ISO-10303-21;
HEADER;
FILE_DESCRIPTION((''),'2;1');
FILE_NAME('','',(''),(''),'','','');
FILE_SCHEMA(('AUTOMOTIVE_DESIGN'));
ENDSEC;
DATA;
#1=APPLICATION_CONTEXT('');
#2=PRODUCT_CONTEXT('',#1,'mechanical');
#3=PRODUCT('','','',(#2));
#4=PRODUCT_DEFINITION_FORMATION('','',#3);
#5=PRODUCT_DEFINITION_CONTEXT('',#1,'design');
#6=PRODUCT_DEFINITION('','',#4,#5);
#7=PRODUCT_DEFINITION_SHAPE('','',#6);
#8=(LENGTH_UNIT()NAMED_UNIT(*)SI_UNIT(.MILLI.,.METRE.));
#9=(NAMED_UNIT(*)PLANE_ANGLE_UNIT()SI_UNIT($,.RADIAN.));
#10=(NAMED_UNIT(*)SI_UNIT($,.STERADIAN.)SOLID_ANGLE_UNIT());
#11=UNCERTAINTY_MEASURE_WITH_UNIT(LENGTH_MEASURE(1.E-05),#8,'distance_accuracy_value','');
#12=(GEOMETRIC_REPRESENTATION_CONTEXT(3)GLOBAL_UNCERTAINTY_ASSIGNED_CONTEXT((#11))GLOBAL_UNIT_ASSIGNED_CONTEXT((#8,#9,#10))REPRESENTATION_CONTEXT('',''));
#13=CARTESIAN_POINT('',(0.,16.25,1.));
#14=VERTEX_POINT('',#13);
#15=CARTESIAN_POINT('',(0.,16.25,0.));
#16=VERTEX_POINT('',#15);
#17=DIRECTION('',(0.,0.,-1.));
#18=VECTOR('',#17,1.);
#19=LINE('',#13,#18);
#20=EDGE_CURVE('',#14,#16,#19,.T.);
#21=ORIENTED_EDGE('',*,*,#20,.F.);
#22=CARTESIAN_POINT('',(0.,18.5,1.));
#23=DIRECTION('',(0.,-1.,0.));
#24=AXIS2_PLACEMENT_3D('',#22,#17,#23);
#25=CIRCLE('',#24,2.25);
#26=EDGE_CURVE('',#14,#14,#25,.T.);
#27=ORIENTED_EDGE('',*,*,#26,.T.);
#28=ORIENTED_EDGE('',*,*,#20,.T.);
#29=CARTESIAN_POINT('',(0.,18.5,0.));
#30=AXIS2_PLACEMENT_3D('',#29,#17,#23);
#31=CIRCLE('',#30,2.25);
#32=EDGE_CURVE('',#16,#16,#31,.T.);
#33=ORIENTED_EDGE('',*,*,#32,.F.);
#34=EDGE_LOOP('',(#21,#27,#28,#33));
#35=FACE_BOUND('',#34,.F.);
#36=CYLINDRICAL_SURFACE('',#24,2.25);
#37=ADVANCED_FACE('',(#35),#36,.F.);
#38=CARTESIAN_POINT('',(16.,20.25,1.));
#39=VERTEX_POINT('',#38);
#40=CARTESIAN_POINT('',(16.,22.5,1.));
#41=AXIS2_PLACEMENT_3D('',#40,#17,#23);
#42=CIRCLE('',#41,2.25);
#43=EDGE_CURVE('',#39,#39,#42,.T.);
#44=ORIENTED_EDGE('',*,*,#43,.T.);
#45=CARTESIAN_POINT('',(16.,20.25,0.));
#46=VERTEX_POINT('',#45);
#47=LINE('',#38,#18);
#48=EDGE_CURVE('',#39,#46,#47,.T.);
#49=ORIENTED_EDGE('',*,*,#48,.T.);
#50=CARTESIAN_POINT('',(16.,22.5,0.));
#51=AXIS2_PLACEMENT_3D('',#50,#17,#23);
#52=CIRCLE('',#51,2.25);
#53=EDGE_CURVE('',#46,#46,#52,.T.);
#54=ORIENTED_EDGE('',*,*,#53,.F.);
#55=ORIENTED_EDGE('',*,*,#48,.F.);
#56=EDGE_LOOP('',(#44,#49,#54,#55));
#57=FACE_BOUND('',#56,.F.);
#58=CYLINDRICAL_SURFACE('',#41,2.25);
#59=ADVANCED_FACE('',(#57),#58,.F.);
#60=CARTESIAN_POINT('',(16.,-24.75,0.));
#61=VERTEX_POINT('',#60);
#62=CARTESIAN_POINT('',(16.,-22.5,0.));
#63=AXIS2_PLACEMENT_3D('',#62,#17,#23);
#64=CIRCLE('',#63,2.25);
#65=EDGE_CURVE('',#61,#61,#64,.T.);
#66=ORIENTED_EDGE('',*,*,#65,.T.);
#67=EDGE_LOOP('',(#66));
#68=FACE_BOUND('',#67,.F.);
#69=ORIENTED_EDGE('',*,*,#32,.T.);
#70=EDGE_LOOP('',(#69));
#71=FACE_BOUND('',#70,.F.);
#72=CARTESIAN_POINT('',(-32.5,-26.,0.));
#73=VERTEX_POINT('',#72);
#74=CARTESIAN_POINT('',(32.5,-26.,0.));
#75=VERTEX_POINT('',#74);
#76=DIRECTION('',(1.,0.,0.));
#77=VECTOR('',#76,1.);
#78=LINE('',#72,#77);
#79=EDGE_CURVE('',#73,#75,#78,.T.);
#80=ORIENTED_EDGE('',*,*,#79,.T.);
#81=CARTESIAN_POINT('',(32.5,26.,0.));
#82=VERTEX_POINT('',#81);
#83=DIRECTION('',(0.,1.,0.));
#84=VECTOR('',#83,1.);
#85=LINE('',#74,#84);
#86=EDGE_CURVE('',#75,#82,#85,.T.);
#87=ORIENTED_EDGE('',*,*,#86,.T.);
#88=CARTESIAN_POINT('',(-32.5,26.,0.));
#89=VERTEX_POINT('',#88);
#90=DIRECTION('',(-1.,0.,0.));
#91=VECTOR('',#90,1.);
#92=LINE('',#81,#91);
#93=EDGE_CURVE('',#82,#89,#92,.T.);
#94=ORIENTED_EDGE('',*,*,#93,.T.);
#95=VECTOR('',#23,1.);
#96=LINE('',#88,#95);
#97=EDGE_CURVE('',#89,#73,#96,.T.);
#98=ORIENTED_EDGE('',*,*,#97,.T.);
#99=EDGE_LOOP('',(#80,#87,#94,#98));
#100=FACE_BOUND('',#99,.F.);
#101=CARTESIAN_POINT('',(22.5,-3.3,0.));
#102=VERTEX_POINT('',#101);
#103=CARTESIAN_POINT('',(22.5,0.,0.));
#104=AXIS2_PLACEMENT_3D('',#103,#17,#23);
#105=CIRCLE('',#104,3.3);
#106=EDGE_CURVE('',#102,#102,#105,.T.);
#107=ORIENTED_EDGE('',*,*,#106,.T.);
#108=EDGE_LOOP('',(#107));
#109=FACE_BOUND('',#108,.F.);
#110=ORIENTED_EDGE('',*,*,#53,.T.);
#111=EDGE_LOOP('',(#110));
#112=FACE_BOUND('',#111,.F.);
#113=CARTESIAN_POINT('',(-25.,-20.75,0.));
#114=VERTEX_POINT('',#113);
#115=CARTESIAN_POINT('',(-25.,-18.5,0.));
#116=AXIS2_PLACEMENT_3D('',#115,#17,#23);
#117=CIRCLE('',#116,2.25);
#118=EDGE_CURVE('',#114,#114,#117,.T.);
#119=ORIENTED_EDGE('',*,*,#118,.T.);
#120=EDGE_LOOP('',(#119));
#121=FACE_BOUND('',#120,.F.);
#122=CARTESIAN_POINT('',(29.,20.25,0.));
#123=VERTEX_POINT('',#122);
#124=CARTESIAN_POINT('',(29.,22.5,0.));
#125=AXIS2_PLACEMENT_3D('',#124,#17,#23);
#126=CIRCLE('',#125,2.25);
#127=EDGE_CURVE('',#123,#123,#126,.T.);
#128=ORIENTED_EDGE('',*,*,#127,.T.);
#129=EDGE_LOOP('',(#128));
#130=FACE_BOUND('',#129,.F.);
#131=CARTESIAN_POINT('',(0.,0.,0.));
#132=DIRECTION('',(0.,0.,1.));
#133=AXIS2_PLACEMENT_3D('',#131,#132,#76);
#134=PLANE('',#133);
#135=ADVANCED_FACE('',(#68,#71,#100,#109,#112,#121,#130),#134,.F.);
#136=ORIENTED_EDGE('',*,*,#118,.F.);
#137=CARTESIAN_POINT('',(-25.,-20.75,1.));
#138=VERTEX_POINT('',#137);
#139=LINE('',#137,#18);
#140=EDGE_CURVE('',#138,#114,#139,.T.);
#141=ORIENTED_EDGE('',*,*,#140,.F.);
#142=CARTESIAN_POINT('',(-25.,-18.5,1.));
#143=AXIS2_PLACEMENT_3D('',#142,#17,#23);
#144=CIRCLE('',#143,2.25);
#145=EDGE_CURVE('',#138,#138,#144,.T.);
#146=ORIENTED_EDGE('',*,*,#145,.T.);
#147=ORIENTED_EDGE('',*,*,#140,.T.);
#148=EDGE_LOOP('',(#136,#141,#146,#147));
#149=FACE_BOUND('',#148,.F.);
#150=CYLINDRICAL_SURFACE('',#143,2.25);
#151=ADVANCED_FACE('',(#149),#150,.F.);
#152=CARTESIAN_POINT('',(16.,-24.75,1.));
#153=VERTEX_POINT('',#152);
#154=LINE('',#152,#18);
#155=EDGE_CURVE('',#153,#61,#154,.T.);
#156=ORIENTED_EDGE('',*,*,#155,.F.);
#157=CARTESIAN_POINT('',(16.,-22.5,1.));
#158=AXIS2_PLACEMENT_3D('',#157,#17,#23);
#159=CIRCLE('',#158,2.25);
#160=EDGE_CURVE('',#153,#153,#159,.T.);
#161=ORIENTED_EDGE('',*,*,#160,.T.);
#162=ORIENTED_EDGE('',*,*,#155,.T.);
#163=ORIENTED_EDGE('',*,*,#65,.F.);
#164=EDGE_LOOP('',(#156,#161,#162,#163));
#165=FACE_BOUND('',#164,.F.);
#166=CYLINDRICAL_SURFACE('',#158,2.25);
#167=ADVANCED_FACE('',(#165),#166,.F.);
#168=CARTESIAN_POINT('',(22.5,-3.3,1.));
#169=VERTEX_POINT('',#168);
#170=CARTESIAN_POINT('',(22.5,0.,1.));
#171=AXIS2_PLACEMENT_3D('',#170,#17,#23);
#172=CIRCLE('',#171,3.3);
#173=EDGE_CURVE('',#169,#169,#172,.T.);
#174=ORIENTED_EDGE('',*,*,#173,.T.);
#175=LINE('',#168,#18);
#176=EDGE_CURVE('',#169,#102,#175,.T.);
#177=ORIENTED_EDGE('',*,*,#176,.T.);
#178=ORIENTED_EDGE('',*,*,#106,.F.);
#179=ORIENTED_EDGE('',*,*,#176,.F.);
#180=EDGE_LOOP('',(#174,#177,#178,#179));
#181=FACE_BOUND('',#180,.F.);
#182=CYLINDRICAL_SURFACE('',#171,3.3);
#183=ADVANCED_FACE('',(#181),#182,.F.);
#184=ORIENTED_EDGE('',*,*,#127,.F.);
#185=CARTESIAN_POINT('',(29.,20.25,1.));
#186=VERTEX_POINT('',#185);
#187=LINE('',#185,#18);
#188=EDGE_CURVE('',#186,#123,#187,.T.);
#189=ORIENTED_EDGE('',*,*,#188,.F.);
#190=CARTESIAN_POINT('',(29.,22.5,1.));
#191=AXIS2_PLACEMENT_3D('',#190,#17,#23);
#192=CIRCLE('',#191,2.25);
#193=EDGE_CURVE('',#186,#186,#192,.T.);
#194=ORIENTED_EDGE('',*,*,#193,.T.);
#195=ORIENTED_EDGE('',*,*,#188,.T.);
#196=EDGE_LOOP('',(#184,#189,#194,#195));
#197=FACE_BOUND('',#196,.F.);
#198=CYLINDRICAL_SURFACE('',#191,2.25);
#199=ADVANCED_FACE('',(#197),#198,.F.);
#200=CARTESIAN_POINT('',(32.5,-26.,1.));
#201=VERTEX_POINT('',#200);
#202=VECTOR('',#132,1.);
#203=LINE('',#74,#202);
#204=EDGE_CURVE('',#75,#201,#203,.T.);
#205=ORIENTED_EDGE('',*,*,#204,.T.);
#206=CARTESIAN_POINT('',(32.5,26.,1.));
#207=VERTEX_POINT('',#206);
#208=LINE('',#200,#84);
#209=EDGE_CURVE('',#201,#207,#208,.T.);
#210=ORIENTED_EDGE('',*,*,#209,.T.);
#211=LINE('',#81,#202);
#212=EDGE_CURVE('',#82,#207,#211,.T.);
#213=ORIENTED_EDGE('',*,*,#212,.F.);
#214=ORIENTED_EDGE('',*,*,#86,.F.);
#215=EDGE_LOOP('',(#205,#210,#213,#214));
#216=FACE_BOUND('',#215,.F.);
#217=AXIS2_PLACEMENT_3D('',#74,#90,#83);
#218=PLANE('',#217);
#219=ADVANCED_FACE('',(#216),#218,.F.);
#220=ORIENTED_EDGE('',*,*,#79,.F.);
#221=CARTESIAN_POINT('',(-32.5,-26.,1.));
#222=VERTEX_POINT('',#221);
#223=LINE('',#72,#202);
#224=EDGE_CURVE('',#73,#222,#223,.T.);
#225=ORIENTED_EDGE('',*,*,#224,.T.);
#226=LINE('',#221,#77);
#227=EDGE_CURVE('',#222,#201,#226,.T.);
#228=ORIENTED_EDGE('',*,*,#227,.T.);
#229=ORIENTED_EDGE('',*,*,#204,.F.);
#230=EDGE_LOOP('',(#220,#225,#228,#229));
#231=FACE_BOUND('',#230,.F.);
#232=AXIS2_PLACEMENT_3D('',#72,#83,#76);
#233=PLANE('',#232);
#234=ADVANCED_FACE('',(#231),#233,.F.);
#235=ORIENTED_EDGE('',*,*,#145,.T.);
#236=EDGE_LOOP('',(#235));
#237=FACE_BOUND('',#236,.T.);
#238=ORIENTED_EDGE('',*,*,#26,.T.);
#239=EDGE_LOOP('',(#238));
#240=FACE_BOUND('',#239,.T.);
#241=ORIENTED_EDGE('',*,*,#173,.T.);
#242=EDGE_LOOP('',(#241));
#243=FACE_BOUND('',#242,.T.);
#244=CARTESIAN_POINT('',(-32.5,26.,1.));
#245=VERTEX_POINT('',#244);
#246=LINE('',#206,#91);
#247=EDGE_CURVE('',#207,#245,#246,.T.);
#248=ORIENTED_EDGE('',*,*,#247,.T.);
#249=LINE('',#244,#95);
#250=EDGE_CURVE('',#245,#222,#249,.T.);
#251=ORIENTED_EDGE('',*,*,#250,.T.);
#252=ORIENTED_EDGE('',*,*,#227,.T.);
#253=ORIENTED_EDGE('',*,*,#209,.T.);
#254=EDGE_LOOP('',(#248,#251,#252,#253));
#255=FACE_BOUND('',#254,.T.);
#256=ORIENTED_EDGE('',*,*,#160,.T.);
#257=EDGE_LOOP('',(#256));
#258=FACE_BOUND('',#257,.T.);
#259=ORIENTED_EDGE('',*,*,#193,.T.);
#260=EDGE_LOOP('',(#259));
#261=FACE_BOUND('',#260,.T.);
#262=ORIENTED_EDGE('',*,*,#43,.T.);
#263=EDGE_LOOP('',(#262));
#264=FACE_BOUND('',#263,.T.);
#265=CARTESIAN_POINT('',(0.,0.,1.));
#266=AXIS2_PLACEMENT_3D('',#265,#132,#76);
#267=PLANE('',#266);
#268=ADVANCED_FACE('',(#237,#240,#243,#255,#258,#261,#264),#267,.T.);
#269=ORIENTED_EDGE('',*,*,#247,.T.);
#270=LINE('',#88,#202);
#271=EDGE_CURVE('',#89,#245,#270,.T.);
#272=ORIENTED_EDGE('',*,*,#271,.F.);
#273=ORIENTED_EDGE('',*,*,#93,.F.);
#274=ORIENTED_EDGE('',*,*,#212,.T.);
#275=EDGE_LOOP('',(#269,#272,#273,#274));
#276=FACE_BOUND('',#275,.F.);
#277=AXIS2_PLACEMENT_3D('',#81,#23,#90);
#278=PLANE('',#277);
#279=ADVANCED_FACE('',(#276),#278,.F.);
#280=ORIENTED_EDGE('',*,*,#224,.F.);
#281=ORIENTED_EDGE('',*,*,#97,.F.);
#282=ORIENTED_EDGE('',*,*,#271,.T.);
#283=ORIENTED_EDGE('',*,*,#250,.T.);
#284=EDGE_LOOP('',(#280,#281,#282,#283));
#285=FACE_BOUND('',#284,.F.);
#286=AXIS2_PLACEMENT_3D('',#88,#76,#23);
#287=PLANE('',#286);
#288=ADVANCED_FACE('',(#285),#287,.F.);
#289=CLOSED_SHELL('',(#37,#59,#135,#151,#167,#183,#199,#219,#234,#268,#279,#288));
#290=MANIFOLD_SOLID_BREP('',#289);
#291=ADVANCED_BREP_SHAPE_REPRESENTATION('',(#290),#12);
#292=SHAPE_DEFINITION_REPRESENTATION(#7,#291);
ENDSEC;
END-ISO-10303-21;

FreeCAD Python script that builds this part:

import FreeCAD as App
import Part
import Sketcher
Q = App.Units.Quantity

doc = App.newDocument("Part")
body = doc.addObject("PartDesign::Body", "Body")

# Sketch on XY plane
sketch1 = doc.addObject("Sketcher::SketchObject", "Sketch")
body.addObject(sketch1)
sketch1.AttachmentSupport = (doc.XY_Plane, [""])
sketch1.MapMode = "FlatFace"
sketch1.addGeometry([
    Part.LineSegment(App.Vector(-32.5, 26, 0), App.Vector(-32.5, -26, 0)),
    Part.LineSegment(App.Vector(-32.5, -26, 0), App.Vector(32.5, -26, 0)),
    Part.LineSegment(App.Vector(32.5, -26, 0), App.Vector(32.5, 26, 0)),
    Part.LineSegment(App.Vector(32.5, 26, 0), App.Vector(-32.5, 26, 0)),
], False)
sketch1.addConstraint([
    Sketcher.Constraint("Coincident", 0, 2, 1, 1),
    Sketcher.Constraint("Coincident", 1, 2, 2, 1),
    Sketcher.Constraint("Coincident", 2, 2, 3, 1),
    Sketcher.Constraint("Coincident", 3, 2, 0, 1),
    Sketcher.Constraint("Vertical", 0),
    Sketcher.Constraint("Horizontal", 1),
    Sketcher.Constraint("Vertical", 2),
    Sketcher.Constraint("Horizontal", 3),
    Sketcher.Constraint("Symmetric", 0, 2, 2, 2, -1, 1),
    Sketcher.Constraint("DistanceX", 1, 1, 1, 2, Q("65 mm")),
    Sketcher.Constraint("DistanceY", 0, 2, 0, 1, Q("52 mm")),
])
pad1 = doc.addObject("PartDesign::Pad", "Pad")
body.addObject(pad1)
pad1.Profile = sketch1
pad1.Length = 1

# Sketch on XY plane
sketch2 = doc.addObject("Sketcher::SketchObject", "Sketch001")
body.addObject(sketch2)
sketch2.AttachmentSupport = (doc.XY_Plane, [""])
sketch2.MapMode = "FlatFace"
sketch2.AttachmentOffset = App.Placement(App.Vector(0, 0, 1), App.Rotation())
sketch2.addGeometry([
    Part.Circle(App.Vector(16, 22.5, 0), App.Vector(0, 0, 1), 2.25),
    Part.Circle(App.Vector(29, 22.5, 0), App.Vector(0, 0, 1), 2.25),
    Part.Circle(App.Vector(16, -22.5, 0), App.Vector(0, 0, 1), 2.25),
], False)
sketch2.addConstraint([
    Sketcher.Constraint("Equal", 0, 1),
    Sketcher.Constraint("Equal", 1, 2),
    Sketcher.Constraint("Symmetric", 0, 3, 2, 3, -1),
    Sketcher.Constraint("Horizontal", 0, 3, 1, 3),
    Sketcher.Constraint("Diameter", 0, Q("4.5 mm")),
    Sketcher.Constraint("DistanceX", -1, 1, 0, 3, Q("16 mm")),
    Sketcher.Constraint("DistanceX", -1, 1, 1, 3, Q("29 mm")),
    Sketcher.Constraint("DistanceY", 2, 3, 0, 3, Q("45 mm")),
])
doc.recompute()
hole = doc.addObject("PartDesign::Hole", "Hole")
body.addObject(hole)
hole.Profile = sketch2
hole.ThreadType = "None"
hole.Diameter = 4.5
hole.DepthType = "Dimension"
hole.Depth = 8
hole.DrillPoint = "Angled"
hole.DrillPointAngle = 118

# Sketch on XY plane
sketch3 = doc.addObject("Sketcher::SketchObject", "Sketch002")
body.addObject(sketch3)
sketch3.AttachmentSupport = (doc.XY_Plane, [""])
sketch3.MapMode = "FlatFace"
sketch3.AttachmentOffset = App.Placement(App.Vector(0, 0, 1), App.Rotation())
sketch3.addGeometry([
    Part.Circle(App.Vector(-25, -18.5, 0), App.Vector(0, 0, 1), 2.25),
    Part.Circle(App.Vector(0, 18.5, 0), App.Vector(0, 0, 1), 2.25),
], False)
sketch3.addConstraint([
    Sketcher.Constraint("Equal", 0, 1),
    Sketcher.Constraint("PointOnObject", 1, 3, -2),
    Sketcher.Constraint("Diameter", 0, Q("4.5 mm")),
    Sketcher.Constraint("DistanceX", 0, 3, -1, 1, Q("25 mm")),
    Sketcher.Constraint("DistanceY", 0, 3, 1, 3, Q("37 mm")),
    Sketcher.Constraint("DistanceY", 0, 3, -1, 1, Q("18.5 mm")),
])
doc.recompute()
hole2 = doc.addObject("PartDesign::Hole", "Hole001")
body.addObject(hole2)
hole2.Profile = sketch3
hole2.ThreadType = "None"
hole2.Diameter = 4.5
hole2.DepthType = "Dimension"
hole2.Depth = 8
hole2.DrillPoint = "Angled"
hole2.DrillPointAngle = 118

# Sketch on XY plane
sketch4 = doc.addObject("Sketcher::SketchObject", "Sketch003")
body.addObject(sketch4)
sketch4.AttachmentSupport = (doc.XY_Plane, [""])
sketch4.MapMode = "FlatFace"
sketch4.AttachmentOffset = App.Placement(App.Vector(0, 0, 1), App.Rotation())
sketch4.addGeometry(Part.Circle(App.Vector(22.5, 0, 0), App.Vector(0, 0, 1), 3.3), False)
sketch4.addConstraint([
    Sketcher.Constraint("PointOnObject", 0, 3, -1),
    Sketcher.Constraint("Diameter", 0, Q("6.6 mm")),
    Sketcher.Constraint("DistanceX", -1, 1, 0, 3, Q("22.5 mm")),
])
doc.recompute()
hole3 = doc.addObject("PartDesign::Hole", "Hole002")
body.addObject(hole3)
hole3.Profile = sketch4
hole3.ThreadType = "None"
hole3.Diameter = 6.6
hole3.DepthType = "Dimension"
hole3.Depth = 8
hole3.DrillPoint = "Angled"
hole3.DrillPointAngle = 118

doc.recompute()
